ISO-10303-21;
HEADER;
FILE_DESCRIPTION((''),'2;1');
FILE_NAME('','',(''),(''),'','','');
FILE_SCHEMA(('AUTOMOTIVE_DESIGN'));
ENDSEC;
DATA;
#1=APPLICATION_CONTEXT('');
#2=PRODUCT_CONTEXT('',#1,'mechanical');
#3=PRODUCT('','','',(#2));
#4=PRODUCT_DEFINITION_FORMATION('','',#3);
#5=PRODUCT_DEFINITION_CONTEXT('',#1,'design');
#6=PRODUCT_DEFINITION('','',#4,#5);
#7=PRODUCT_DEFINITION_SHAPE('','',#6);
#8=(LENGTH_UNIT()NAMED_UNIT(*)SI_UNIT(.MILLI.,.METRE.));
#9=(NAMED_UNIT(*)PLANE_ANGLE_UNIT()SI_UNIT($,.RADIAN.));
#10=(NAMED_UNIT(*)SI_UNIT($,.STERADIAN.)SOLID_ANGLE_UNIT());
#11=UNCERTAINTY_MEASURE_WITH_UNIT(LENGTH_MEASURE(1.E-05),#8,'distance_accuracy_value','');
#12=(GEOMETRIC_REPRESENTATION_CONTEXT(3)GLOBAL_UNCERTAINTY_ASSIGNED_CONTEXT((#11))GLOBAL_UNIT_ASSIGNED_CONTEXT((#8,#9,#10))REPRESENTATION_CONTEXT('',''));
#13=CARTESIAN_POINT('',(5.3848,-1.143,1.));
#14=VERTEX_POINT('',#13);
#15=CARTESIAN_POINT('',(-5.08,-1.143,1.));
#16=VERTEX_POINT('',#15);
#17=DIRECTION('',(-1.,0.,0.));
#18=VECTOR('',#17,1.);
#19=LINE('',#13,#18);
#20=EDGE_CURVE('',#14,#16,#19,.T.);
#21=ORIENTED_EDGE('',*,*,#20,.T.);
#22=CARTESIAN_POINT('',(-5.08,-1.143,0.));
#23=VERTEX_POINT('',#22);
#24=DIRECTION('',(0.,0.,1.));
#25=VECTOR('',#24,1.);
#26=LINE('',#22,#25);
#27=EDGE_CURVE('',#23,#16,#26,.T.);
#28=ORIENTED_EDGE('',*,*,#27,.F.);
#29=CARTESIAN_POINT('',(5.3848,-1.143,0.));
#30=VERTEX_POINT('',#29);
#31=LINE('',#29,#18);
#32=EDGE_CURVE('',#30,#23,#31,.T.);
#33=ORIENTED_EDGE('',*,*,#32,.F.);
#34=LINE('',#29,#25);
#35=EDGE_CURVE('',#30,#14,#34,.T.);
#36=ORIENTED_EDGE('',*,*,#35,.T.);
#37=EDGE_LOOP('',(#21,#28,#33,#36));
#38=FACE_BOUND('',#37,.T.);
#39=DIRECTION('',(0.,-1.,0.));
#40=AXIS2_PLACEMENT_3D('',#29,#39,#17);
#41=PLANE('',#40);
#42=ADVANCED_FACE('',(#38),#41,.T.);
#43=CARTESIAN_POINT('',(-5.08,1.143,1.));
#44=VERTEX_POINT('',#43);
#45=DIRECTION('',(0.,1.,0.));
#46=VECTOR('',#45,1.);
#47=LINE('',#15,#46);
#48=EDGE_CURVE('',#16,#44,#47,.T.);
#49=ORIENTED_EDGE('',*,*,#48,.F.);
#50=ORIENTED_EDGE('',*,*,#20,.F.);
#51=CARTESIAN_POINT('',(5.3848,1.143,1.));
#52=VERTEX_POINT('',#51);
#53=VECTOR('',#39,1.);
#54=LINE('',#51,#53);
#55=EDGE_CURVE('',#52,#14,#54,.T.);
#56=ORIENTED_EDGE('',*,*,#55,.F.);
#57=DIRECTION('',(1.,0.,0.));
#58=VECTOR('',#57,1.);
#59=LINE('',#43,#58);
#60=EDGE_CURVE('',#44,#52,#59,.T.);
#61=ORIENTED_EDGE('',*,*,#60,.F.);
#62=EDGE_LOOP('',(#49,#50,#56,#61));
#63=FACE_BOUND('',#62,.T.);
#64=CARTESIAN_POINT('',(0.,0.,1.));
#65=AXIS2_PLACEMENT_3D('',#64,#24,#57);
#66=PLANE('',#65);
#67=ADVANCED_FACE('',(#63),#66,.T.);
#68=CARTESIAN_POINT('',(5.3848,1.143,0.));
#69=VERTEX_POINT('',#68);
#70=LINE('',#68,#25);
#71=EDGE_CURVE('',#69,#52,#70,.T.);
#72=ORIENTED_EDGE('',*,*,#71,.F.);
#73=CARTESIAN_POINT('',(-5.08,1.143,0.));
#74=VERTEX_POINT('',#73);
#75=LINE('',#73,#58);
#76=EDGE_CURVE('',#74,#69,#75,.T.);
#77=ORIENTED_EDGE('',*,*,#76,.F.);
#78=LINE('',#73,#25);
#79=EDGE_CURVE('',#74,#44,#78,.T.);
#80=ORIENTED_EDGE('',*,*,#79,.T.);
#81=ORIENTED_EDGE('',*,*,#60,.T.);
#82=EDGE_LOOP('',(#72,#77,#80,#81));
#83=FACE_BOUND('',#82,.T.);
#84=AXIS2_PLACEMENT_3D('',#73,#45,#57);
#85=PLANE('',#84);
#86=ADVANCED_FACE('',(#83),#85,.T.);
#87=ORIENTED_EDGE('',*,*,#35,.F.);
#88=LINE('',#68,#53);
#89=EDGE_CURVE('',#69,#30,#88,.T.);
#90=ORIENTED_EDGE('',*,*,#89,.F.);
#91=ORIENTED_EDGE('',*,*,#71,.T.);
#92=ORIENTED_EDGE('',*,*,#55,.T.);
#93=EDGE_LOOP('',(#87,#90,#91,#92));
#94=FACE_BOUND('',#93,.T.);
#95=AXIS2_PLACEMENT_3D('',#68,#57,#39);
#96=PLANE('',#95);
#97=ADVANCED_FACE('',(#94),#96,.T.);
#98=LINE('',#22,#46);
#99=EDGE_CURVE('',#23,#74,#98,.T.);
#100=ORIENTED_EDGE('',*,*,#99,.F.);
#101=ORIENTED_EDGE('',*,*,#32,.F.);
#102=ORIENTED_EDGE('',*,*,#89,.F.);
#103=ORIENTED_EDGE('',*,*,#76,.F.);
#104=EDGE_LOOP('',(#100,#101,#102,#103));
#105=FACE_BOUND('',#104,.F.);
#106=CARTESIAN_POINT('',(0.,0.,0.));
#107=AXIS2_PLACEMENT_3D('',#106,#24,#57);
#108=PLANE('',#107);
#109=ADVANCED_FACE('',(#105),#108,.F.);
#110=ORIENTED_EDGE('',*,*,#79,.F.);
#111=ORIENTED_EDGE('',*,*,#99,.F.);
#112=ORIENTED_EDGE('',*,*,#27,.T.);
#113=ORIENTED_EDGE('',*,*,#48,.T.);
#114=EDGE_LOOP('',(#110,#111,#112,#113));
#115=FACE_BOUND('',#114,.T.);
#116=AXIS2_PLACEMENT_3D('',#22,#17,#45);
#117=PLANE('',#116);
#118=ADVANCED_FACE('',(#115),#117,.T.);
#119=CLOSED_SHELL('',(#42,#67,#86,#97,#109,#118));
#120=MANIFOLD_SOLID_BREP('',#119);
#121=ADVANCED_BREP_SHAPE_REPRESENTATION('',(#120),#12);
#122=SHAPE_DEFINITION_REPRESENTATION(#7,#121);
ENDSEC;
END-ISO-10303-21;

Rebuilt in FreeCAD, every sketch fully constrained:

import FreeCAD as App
import Part
import Sketcher
Q = App.Units.Quantity

doc = App.newDocument("Part")
body = doc.addObject("PartDesign::Body", "Body")

sketch1 = body.newObject("Sketcher::SketchObject", "Sketch")
sketch1.AttachmentSupport = (doc.getObject("XY_Plane"), [""])
sketch1.MapMode = "FlatFace"
sketch1.addGeometry([
    Part.LineSegment(App.Vector(5.4, 1.1, 0), App.Vector(-5.1, 1.1, 0)),
    Part.LineSegment(App.Vector(-5.1, 1.1, 0), App.Vector(-5.1, -1.1, 0)),
    Part.LineSegment(App.Vector(-5.1, -1.1, 0), App.Vector(5.4, -1.1, 0)),
    Part.LineSegment(App.Vector(5.4, -1.1, 0), App.Vector(5.4, 1.1, 0)),
], False)
sketch1.addConstraint([
    Sketcher.Constraint("Coincident", 0, 2, 1, 1),
    Sketcher.Constraint("Coincident", 1, 2, 2, 1),
    Sketcher.Constraint("Coincident", 2, 2, 3, 1),
    Sketcher.Constraint("Coincident", 3, 2, 0, 1),
    Sketcher.Constraint("Horizontal", 0),
    Sketcher.Constraint("Vertical", 1),
    Sketcher.Constraint("Horizontal", 2),
    Sketcher.Constraint("Vertical", 3),
    Sketcher.Constraint("DistanceY", 1, 2, 1, 1, Q("0.09 in")),
    Sketcher.Constraint("DistanceX", 0, 2, -1, 1, Q("0.2 in")),
    Sketcher.Constraint("DistanceX", 0, 2, 0, 1, Q("0.412 in")),
    Sketcher.Constraint("DistanceY", -1, 1, 0, 2, Q("0.045 in")),
])
pad1 = body.newObject("PartDesign::Pad", "Pad")
pad1.Profile = sketch1
pad1.Length = 1

doc.recompute()
